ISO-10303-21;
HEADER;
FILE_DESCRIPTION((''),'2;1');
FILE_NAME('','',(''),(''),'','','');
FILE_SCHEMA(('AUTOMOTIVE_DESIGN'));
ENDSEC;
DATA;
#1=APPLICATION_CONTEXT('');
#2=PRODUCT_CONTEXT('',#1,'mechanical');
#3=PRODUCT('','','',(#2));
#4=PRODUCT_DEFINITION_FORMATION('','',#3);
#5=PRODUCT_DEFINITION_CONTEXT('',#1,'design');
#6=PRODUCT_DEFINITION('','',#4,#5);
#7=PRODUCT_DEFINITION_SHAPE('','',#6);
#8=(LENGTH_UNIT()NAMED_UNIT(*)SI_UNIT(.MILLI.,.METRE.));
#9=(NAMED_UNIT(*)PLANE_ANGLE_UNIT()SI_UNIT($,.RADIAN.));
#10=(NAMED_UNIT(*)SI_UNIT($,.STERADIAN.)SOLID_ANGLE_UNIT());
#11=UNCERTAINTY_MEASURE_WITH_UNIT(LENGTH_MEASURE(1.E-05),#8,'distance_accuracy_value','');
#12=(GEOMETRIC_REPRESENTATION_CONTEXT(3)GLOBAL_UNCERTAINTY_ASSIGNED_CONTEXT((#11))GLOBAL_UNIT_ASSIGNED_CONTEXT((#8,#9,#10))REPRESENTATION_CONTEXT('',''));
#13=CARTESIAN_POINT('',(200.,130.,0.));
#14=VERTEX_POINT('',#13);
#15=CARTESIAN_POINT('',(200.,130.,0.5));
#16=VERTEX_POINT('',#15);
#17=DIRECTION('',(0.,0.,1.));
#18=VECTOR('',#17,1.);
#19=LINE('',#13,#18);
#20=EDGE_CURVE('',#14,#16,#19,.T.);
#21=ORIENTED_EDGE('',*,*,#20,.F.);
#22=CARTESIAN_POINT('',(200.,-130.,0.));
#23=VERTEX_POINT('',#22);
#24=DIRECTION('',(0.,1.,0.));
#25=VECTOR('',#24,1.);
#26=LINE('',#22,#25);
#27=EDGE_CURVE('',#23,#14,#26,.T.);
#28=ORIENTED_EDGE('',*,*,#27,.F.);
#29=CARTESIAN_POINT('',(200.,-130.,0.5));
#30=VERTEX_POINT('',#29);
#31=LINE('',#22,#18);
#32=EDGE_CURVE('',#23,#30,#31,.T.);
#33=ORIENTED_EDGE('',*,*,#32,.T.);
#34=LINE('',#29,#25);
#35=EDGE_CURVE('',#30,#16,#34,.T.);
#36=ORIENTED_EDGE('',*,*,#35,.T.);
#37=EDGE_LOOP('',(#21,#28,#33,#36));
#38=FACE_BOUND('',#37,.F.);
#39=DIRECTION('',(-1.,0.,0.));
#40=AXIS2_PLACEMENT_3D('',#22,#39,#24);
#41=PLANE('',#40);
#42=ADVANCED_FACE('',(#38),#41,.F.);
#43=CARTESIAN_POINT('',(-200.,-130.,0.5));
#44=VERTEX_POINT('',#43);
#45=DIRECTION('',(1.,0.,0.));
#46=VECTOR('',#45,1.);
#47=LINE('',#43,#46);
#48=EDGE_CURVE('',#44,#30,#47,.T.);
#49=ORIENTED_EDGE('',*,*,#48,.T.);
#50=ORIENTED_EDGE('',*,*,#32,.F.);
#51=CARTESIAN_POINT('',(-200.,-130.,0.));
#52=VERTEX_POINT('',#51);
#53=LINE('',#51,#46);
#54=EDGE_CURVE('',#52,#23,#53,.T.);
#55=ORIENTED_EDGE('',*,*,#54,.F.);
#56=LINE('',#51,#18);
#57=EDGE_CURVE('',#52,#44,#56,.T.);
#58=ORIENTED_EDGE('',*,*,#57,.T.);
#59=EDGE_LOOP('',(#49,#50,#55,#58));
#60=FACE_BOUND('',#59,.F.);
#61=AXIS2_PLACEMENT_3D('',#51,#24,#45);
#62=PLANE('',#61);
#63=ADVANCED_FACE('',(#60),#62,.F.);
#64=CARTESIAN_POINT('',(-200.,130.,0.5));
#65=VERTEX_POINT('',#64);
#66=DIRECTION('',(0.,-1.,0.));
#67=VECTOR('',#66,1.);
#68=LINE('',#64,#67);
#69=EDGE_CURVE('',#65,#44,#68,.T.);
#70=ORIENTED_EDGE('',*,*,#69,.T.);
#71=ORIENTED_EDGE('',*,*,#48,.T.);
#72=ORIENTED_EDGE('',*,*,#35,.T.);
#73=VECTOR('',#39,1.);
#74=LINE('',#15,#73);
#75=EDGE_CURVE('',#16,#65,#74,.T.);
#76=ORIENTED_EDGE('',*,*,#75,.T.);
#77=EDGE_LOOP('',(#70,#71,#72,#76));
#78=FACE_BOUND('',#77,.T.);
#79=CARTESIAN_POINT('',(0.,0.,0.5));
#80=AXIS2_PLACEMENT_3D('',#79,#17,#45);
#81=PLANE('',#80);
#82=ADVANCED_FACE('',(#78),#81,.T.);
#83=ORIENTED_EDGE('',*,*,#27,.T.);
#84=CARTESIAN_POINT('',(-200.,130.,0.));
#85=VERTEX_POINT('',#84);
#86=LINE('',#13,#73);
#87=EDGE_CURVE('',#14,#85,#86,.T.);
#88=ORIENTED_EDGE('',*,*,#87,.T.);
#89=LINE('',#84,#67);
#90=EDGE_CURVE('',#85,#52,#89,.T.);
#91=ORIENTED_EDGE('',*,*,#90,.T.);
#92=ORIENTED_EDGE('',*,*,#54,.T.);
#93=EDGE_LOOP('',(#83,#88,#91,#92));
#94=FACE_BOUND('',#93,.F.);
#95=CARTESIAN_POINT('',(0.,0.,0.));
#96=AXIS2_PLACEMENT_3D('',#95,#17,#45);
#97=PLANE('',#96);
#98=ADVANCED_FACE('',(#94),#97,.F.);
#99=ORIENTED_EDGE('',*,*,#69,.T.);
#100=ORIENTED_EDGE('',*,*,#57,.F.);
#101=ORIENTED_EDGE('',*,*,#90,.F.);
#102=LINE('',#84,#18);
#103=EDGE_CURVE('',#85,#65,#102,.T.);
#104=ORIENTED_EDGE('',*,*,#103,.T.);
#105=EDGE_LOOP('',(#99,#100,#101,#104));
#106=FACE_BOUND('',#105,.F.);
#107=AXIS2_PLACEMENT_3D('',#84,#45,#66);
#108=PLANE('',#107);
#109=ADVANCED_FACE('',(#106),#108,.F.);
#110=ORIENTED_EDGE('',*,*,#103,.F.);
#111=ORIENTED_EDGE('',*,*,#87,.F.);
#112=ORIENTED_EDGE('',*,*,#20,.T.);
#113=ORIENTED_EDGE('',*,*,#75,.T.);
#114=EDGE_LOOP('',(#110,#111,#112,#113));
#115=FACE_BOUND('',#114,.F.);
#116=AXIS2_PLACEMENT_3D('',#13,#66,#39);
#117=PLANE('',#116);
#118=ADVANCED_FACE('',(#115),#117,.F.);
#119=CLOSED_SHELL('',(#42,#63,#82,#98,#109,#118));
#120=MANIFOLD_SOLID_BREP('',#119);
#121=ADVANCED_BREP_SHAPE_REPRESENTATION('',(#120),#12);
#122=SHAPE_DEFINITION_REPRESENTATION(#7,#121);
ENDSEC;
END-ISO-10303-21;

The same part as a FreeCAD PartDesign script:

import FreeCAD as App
import Part
import Sketcher

V = App.Vector
Q = App.Units.Quantity


def add_polygon(sketch, points):
    """Adds a closed chain of lines whose ends are joined by coincident constraints."""
    first, n = sketch.GeometryCount, len(points)
    for a, b in zip(points, points[1:] + points[:1]):
        sketch.addGeometry(Part.LineSegment(App.Vector(*a, 0), App.Vector(*b, 0)), False)
    for i in range(n):
        sketch.addConstraint(Sketcher.Constraint("Coincident", first + i, 2, first + (i + 1) % n, 1))

doc = App.newDocument("Part")
body = doc.addObject("PartDesign::Body", "Body")

# Sketch on XY plane
sketch1 = body.newObject("Sketcher::SketchObject", "Sketch")
sketch1.AttachmentSupport = (doc.getObject("XY_Plane"), [""])
sketch1.MapMode = "FlatFace"
add_polygon(sketch1, [(-200, 130), (-200, -130), (200, -130), (200, 130)])  # lines 0-3
sketch1.addConstraint([
    Sketcher.Constraint("Vertical", 0),
    Sketcher.Constraint("Horizontal", 1),
    Sketcher.Constraint("Vertical", 2),
    Sketcher.Constraint("Horizontal", 3),
    Sketcher.Constraint("Symmetric", 0, 2, 2, 2, -1, 1),
    Sketcher.Constraint("DistanceX", 1, 1, 1, 2, Q("400 mm")),
    Sketcher.Constraint("DistanceY", 0, 2, 0, 1, Q("260 mm")),
])
pad1 = body.newObject("PartDesign::Pad", "Pad")
pad1.Profile = sketch1
pad1.Length = 0.5

doc.recompute()
